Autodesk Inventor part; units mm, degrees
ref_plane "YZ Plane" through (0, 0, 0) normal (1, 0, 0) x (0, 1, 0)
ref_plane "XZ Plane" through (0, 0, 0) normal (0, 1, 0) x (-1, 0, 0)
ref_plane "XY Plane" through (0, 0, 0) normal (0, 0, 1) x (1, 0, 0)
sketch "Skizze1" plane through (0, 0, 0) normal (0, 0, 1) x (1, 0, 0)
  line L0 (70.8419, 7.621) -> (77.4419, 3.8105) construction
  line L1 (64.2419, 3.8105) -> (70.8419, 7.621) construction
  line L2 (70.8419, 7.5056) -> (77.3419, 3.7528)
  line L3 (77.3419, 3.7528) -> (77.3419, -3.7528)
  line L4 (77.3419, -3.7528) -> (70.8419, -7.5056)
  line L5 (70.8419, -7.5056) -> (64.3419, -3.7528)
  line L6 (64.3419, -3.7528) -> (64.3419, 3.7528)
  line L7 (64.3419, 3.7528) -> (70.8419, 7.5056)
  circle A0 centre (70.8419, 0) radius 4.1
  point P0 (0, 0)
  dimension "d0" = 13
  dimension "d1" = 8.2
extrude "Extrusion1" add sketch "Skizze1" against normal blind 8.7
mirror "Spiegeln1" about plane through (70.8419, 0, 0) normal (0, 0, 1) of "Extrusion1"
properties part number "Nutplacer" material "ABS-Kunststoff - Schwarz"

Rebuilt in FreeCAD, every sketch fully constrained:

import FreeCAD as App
import Part
import Sketcher

V = App.Vector
Q = App.Units.Quantity

doc = App.newDocument("Part")
body = doc.addObject("PartDesign::Body", "Body")

# Sketch on XY plane
sketch1 = doc.addObject("Sketcher::SketchObject", "Sketch")
body.addObject(sketch1)
sketch1.AttachmentSupport = (doc.XY_Plane, [""])
sketch1.MapMode = "FlatFace"
sketch1.addGeometry([
    Part.LineSegment(V(77.3, 3.8, 0), V(70.8, 7.5, 0)),  # 0
    Part.LineSegment(V(70.8, 7.5, 0), V(64.3, 3.8, 0)),  # 1
    Part.LineSegment(V(64.3, 3.8, 0), V(64.3, -3.8, 0)),  # 2
    Part.LineSegment(V(64.3, -3.8, 0), V(70.8, -7.5, 0)),  # 3
    Part.LineSegment(V(70.8, -7.5, 0), V(77.3, -3.8, 0)),  # 4
    Part.LineSegment(V(77.3, -3.8, 0), V(77.3, 3.8, 0)),  # 5
    Part.Circle(V(70.8, 0, 0), V(0, 0, 1), 4.1),  # 6
], False)
sketch1.addConstraint([
    Sketcher.Constraint("Coincident", 0, 2, 1, 1),
    Sketcher.Constraint("Coincident", 1, 2, 2, 1),
    Sketcher.Constraint("Coincident", 2, 2, 3, 1),
    Sketcher.Constraint("Coincident", 3, 2, 4, 1),
    Sketcher.Constraint("Coincident", 4, 2, 5, 1),
    Sketcher.Constraint("Coincident", 5, 2, 0, 1),
    Sketcher.Constraint("Vertical", 2),
    Sketcher.Constraint("Vertical", 5),
    Sketcher.Constraint("Symmetric", 0, 2, 3, 2, -1),
    Sketcher.Constraint("PointOnObject", 6, 3, -1),
    Sketcher.Constraint("Parallel", 0, 3),
    Sketcher.Constraint("Parallel", 1, 4),
    Sketcher.Constraint("Horizontal", 2, 2, 4, 2),
    Sketcher.Constraint("Horizontal", 1, 2, 5, 2),
    Sketcher.Constraint("Vertical", 6, 3, 0, 2),
    Sketcher.Constraint("Diameter", 6, Q("8.2 mm")),
    Sketcher.Constraint("DistanceX", 2, 2, 4, 2, Q("13 mm")),
    Sketcher.Constraint("Angle", 0, Q("149.9998 deg")),
    Sketcher.Constraint("DistanceY", 2, 2, 2, 1, Q("7.5056 mm")),
    Sketcher.Constraint("DistanceX", -1, 1, 6, 3, Q("70.842 mm")),
])
pad1 = doc.addObject("PartDesign::Pad", "Pad")
body.addObject(pad1)
pad1.Profile = sketch1
pad1.Length = 8.7
pad1.Reversed = True
doc.recompute()

mirrored = doc.addObject("PartDesign::Mirrored", "Mirrored")
body.addObject(mirrored)
mirrored.Originals = [pad1]
mirrored.MirrorPlane = (doc.XY_Plane, [""])
body.Tip = mirrored

doc.recompute()
